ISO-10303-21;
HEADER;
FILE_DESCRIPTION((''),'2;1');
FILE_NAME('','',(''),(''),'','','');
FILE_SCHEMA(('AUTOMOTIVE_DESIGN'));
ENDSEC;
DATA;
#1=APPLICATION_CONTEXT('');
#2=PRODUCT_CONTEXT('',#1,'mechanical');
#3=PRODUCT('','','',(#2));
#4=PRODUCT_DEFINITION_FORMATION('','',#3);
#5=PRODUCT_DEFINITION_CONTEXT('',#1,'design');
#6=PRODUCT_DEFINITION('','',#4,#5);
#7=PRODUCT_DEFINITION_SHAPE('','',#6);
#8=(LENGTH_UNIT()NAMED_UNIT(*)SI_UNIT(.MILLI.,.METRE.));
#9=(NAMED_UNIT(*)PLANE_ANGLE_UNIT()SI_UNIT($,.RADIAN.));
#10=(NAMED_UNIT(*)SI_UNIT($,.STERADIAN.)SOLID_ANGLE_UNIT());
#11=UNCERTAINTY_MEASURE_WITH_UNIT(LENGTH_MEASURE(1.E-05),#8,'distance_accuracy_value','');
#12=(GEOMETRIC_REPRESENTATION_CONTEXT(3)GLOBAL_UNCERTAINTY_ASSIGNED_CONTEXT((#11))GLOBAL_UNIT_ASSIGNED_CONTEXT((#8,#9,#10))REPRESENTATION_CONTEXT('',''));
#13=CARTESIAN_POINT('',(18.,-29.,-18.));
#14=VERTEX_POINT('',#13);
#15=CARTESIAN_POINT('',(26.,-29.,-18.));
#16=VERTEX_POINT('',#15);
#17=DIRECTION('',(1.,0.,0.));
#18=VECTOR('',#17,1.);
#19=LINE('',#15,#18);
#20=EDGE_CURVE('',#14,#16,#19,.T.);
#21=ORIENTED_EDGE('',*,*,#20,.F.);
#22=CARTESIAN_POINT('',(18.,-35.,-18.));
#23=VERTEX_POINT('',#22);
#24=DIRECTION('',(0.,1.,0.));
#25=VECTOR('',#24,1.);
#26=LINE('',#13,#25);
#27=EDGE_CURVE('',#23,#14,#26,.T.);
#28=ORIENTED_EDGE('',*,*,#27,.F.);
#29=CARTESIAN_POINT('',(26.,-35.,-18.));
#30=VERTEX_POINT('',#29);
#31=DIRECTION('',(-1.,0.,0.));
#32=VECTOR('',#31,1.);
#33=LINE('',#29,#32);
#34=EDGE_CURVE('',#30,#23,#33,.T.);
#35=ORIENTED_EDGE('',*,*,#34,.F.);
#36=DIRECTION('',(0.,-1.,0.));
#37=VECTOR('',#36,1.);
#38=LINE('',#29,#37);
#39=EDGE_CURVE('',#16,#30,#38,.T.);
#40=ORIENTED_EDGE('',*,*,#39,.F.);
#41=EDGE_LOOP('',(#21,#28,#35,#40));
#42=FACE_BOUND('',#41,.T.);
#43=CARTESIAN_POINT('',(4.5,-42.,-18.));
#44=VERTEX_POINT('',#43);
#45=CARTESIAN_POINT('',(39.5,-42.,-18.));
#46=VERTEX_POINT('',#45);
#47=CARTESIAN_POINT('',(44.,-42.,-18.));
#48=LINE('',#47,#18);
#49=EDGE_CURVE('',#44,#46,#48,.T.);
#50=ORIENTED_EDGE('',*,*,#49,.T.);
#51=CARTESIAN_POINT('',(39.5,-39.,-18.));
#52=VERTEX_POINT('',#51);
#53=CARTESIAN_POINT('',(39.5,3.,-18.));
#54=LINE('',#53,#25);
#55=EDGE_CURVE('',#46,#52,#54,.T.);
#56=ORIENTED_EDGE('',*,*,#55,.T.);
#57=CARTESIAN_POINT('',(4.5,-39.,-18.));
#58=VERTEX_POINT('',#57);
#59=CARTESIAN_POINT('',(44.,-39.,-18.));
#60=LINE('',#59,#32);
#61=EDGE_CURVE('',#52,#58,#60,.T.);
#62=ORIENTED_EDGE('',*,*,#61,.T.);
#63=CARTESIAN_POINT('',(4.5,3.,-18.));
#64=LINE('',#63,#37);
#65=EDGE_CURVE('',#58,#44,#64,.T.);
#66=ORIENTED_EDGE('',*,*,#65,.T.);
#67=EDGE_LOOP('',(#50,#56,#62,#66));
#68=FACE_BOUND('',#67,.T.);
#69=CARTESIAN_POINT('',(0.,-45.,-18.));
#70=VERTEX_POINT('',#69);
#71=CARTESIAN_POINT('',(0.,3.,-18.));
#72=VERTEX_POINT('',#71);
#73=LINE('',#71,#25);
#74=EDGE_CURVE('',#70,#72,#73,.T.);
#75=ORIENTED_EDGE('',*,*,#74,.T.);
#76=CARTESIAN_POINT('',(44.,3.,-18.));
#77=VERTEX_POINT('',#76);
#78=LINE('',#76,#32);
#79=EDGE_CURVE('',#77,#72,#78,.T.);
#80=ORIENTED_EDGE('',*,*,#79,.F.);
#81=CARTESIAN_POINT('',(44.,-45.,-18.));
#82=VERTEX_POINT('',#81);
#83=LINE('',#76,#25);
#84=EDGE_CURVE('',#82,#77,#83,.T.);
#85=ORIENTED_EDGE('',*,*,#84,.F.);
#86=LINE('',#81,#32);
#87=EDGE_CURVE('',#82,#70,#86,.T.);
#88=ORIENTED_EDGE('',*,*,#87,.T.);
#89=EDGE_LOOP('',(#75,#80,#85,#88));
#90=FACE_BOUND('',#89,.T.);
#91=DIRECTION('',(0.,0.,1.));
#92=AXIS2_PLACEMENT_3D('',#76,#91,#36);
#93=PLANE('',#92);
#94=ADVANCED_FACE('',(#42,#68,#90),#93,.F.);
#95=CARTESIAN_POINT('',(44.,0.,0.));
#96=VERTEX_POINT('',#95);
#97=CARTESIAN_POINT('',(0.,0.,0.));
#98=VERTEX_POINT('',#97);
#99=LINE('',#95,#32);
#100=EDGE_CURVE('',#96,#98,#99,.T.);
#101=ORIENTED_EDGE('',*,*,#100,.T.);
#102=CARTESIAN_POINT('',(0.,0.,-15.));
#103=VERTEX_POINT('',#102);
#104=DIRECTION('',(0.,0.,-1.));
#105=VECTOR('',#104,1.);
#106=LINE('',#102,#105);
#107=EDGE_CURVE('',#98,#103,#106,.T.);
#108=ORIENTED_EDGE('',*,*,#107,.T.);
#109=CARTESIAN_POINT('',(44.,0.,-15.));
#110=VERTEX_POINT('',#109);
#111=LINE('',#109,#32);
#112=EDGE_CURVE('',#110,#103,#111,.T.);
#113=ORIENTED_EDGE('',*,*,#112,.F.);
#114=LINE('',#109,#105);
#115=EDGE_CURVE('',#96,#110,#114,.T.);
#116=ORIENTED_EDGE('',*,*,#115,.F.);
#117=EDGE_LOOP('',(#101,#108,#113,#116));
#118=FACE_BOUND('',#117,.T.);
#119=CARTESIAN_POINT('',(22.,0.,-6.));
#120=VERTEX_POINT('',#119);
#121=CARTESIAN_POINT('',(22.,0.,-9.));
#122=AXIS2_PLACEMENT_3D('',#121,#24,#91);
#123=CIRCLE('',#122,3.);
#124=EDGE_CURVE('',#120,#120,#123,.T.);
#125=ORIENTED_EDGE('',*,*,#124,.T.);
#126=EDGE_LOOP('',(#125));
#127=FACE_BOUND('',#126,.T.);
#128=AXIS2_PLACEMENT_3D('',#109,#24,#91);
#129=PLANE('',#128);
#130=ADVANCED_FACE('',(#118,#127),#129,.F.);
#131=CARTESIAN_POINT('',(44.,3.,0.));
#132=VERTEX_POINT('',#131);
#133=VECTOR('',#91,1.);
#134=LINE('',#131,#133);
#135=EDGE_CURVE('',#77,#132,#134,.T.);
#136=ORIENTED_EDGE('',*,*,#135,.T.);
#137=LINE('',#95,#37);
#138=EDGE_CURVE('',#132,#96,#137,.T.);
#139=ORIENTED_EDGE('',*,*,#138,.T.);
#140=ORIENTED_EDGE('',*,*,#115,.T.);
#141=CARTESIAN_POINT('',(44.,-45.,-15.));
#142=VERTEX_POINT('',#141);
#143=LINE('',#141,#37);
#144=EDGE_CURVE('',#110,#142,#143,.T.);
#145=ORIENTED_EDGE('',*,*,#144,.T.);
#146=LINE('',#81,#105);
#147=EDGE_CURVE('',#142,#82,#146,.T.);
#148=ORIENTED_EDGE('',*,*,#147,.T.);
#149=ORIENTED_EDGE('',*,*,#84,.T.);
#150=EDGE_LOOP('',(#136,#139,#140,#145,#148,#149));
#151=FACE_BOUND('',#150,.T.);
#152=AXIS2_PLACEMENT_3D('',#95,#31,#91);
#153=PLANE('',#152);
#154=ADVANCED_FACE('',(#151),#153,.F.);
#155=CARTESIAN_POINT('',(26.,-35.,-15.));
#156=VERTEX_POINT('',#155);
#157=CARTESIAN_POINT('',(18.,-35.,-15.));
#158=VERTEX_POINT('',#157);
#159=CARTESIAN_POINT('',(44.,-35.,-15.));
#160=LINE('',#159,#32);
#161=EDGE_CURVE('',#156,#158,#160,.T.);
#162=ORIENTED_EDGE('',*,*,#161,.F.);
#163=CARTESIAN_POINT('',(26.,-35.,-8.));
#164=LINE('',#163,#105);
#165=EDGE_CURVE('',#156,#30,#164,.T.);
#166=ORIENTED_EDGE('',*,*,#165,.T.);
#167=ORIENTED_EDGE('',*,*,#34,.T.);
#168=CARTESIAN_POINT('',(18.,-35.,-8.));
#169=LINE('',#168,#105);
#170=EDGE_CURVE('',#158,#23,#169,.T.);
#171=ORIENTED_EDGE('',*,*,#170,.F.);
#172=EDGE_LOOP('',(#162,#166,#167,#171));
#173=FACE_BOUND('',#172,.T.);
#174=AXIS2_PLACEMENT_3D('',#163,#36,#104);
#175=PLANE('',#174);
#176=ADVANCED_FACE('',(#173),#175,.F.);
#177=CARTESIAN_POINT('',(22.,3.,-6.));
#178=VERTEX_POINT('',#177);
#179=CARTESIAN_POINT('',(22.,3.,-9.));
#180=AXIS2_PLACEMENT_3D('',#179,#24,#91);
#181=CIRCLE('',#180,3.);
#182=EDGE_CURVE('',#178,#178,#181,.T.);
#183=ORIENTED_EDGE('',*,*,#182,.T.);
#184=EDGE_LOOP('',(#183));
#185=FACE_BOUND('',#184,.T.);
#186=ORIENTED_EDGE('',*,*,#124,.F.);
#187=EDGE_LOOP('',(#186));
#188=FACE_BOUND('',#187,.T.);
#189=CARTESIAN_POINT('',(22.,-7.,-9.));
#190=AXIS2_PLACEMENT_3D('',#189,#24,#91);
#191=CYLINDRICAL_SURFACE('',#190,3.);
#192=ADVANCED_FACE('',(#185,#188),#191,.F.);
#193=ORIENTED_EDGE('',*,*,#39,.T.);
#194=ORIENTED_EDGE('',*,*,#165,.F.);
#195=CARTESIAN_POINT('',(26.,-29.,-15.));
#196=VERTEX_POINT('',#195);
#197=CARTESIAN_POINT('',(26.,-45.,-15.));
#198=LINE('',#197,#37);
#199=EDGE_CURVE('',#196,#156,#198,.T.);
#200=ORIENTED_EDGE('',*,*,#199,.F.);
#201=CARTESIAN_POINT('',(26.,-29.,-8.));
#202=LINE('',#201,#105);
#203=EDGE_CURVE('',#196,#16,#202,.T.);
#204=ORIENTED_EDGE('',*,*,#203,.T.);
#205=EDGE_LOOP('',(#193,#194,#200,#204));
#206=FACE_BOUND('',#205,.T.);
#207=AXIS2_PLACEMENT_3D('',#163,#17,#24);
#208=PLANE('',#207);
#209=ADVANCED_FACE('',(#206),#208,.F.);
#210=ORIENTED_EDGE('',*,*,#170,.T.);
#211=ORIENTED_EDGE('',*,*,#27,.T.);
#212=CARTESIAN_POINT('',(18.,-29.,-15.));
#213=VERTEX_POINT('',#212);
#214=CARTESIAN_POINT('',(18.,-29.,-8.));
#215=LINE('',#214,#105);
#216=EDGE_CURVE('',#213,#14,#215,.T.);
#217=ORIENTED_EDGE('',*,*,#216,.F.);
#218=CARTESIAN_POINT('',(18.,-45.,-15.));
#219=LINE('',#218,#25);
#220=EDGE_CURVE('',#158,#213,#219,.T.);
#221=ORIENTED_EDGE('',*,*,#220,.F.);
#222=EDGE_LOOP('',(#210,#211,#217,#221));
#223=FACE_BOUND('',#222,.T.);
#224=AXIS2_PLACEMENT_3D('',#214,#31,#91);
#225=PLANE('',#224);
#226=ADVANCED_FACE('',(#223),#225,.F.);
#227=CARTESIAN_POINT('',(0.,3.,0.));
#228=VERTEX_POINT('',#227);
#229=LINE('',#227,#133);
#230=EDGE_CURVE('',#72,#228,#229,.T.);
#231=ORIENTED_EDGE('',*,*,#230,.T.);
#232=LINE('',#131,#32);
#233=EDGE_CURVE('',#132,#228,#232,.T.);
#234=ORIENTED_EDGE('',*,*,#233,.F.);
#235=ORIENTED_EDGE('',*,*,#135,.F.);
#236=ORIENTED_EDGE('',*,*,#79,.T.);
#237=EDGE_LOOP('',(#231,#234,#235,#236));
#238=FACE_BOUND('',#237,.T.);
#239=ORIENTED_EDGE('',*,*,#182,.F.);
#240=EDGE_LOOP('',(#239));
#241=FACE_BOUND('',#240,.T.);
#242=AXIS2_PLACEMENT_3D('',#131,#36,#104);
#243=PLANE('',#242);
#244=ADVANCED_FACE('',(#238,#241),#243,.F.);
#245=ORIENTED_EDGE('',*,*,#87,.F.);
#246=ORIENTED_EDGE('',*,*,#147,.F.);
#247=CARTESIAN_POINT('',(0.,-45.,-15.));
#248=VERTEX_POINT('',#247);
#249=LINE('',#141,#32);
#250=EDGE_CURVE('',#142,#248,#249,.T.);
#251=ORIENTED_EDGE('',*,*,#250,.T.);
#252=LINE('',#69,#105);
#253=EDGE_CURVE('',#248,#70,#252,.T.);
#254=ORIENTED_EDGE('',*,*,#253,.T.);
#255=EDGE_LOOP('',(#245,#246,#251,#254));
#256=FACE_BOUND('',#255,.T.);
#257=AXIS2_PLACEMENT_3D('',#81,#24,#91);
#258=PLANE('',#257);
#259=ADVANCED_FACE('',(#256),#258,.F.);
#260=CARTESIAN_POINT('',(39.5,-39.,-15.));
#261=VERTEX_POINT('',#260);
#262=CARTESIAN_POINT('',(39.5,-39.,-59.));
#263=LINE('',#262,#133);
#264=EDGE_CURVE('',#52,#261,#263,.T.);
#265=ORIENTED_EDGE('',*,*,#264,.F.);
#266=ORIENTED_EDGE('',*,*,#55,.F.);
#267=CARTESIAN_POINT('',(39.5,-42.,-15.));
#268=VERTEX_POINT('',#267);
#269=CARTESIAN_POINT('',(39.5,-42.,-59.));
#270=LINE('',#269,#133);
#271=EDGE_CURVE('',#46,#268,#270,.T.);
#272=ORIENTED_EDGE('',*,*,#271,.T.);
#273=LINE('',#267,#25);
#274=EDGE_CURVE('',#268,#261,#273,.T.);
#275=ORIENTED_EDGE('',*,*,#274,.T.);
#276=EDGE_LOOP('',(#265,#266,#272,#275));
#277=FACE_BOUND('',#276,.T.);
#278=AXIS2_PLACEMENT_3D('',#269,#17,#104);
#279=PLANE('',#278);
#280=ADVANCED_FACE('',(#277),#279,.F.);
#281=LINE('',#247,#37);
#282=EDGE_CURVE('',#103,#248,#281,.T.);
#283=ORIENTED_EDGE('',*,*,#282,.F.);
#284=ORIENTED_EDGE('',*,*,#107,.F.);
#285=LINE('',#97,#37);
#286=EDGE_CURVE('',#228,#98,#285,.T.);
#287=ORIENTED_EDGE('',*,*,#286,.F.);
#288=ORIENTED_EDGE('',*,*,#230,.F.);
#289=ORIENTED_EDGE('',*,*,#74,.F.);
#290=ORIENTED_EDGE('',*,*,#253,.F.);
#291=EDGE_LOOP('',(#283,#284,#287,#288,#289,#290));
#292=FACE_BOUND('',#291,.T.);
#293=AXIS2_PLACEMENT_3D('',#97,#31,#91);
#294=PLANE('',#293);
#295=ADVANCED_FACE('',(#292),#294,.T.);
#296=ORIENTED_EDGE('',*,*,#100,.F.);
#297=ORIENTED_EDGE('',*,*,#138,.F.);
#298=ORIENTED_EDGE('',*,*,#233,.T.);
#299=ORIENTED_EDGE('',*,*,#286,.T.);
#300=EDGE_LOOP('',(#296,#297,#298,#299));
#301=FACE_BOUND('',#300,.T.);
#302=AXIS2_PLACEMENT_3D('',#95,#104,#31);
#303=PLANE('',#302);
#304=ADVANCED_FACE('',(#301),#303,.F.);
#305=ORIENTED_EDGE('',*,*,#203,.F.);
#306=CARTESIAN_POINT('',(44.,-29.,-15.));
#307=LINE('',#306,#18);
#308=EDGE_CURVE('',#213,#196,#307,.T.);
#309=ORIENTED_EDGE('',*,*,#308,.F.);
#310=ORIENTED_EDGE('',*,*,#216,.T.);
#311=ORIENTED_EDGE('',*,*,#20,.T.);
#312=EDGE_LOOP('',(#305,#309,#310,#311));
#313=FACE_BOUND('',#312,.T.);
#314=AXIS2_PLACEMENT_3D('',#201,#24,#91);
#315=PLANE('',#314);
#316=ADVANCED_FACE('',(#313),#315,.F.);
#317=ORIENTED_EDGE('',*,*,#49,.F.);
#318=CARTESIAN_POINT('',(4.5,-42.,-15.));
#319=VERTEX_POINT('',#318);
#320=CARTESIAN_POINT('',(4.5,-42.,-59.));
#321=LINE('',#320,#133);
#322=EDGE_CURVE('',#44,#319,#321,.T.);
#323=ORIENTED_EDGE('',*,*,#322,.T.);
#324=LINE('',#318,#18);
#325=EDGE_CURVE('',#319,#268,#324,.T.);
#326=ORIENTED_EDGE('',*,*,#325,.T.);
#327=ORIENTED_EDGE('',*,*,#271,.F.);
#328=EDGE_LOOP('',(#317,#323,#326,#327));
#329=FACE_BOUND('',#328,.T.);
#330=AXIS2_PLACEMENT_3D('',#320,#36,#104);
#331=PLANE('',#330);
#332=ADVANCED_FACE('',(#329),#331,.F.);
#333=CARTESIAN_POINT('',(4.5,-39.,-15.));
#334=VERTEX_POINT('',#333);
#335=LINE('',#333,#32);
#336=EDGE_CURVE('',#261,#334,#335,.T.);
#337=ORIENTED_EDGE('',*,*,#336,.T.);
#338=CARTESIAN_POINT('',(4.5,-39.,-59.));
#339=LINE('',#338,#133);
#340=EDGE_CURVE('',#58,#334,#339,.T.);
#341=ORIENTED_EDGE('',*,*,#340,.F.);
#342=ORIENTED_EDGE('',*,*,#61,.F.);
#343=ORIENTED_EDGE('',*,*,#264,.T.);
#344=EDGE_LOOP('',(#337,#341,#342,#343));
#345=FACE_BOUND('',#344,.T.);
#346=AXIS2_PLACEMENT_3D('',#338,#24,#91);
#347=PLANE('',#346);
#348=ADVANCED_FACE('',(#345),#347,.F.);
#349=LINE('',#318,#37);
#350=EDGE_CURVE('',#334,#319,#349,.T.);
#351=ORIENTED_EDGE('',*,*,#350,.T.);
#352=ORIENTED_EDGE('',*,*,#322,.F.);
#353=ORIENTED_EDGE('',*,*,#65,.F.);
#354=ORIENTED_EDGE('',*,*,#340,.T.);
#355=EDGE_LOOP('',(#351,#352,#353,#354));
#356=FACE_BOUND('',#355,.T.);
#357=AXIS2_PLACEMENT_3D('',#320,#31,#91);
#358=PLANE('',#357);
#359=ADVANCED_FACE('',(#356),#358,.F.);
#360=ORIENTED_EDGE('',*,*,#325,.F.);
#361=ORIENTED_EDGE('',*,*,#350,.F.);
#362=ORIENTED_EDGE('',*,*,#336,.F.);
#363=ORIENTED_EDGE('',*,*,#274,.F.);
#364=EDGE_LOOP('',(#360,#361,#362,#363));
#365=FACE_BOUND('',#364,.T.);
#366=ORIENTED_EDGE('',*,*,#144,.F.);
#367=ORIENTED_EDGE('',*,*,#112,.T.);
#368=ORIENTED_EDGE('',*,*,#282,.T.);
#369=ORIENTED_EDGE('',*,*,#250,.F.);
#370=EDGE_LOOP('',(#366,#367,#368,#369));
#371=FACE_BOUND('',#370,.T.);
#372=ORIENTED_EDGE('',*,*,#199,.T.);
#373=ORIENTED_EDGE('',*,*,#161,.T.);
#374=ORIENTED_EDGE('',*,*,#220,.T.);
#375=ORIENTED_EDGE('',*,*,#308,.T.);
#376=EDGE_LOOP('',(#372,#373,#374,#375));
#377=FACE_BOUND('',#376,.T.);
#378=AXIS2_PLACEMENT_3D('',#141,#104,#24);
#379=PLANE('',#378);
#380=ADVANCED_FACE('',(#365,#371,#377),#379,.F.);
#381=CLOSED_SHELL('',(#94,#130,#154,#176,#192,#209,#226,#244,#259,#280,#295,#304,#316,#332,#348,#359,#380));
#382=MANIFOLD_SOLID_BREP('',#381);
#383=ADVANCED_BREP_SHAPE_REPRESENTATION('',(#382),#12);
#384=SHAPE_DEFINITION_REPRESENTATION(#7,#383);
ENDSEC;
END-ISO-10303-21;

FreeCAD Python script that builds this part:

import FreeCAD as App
import Part
import Sketcher
from FreeCAD import Vector

doc = App.newDocument("Part")
body = doc.addObject("PartDesign::Body", "Body")

# Sketch on YZ plane
sketch1 = doc.addObject("Sketcher::SketchObject", "Sketch")
body.addObject(sketch1)
sketch1.AttachmentSupport = (doc.YZ_Plane, [""])
sketch1.MapMode = "FlatFace"
sketch1.addGeometry([
    Part.LineSegment(Vector(3, 0, 0), Vector(0, 0, 0)),  # 0
    Part.LineSegment(Vector(0, 0, 0), Vector(0, -15, 0)),  # 1
    Part.LineSegment(Vector(0, -15, 0), Vector(-45, -15, 0)),  # 2
    Part.LineSegment(Vector(-45, -15, 0), Vector(-45, -18, 0)),  # 3
    Part.LineSegment(Vector(-45, -18, 0), Vector(3, -18, 0)),  # 4
    Part.LineSegment(Vector(3, -18, 0), Vector(3, 0, 0)),  # 5
], False)
sketch1.addConstraint([
    Sketcher.Constraint("Coincident", 0, 2, 1, 1),
    Sketcher.Constraint("Coincident", 1, 2, 2, 1),
    Sketcher.Constraint("Coincident", 2, 2, 3, 1),
    Sketcher.Constraint("Coincident", 3, 2, 4, 1),
    Sketcher.Constraint("Coincident", 4, 2, 5, 1),
    Sketcher.Constraint("Coincident", 5, 2, 0, 1),
    Sketcher.Constraint("Horizontal", 0),
    Sketcher.Constraint("Vertical", 1),
    Sketcher.Constraint("Horizontal", 2),
    Sketcher.Constraint("Vertical", 3),
    Sketcher.Constraint("Horizontal", 4),
    Sketcher.Constraint("Vertical", 5),
    Sketcher.Constraint("Coincident", 0, 2, -1, 1),
    Sketcher.Constraint("Equal", 0, 3),
    Sketcher.Constraint("DistanceX", 0, 2, 0, 1, 3.0),
    Sketcher.Constraint("DistanceX", 2, 2, 2, 1, 45.0),
    Sketcher.Constraint("DistanceY", 1, 2, 1, 1, 15.0),
])
pad1 = doc.addObject("PartDesign::Pad", "Pad")
body.addObject(pad1)
pad1.Profile = sketch1
pad1.Length = 44

# Sketch on XY plane
sketch2 = doc.addObject("Sketcher::SketchObject", "Sketch001")
body.addObject(sketch2)
sketch2.AttachmentSupport = (doc.XY_Plane, [""])
sketch2.MapMode = "FlatFace"
sketch2.AttachmentOffset = App.Placement(Vector(0, 0, -15), App.Rotation())
sketch2.addGeometry([
    Part.LineSegment(Vector(4.5, -39, 0), Vector(4.5, -42, 0)),
    Part.LineSegment(Vector(4.5, -42, 0), Vector(39.5, -42, 0)),
    Part.LineSegment(Vector(39.5, -42, 0), Vector(39.5, -39, 0)),
    Part.LineSegment(Vector(39.5, -39, 0), Vector(4.5, -39, 0)),
], False)
sketch2.addConstraint([
    Sketcher.Constraint("Coincident", 0, 2, 1, 1),
    Sketcher.Constraint("Coincident", 1, 2, 2, 1),
    Sketcher.Constraint("Coincident", 2, 2, 3, 1),
    Sketcher.Constraint("Coincident", 3, 2, 0, 1),
    Sketcher.Constraint("Vertical", 0),
    Sketcher.Constraint("Horizontal", 1),
    Sketcher.Constraint("Vertical", 2),
    Sketcher.Constraint("Horizontal", 3),
    Sketcher.Constraint("DistanceX", 1, 1, 1, 2, 35.0),
    Sketcher.Constraint("DistanceY", 0, 2, 0, 1, 3.0),
    Sketcher.Constraint("DistanceY", 0, 2, -1, 1, 42.0),
    Sketcher.Constraint("DistanceX", -1, 1, 0, 2, 4.5),
])
pocket1 = doc.addObject("PartDesign::Pocket", "Pocket")
body.addObject(pocket1)
pocket1.Profile = sketch2
pocket1.Length = 44

# Sketch on XZ plane
sketch3 = doc.addObject("Sketcher::SketchObject", "Sketch002")
body.addObject(sketch3)
sketch3.AttachmentSupport = (doc.XZ_Plane, [""])
sketch3.MapMode = "FlatFace"
sketch3.AttachmentOffset = App.Placement(Vector(0, 0, -3), App.Rotation())
sketch3.addGeometry(Part.Circle(Vector(22, -9, 0), Vector(0, 0, 1), 3), False)
sketch3.addConstraint([
    Sketcher.Constraint("Diameter", 0, 6.0),
    Sketcher.Constraint("DistanceX", -1, 1, 0, 3, 22.0),
    Sketcher.Constraint("DistanceY", 0, 3, -1, 1, 9.0),
])
pocket2 = doc.addObject("PartDesign::Pocket", "Pocket001")
body.addObject(pocket2)
pocket2.Profile = sketch3
pocket2.Length = 10
pocket2.Reversed = True

# Sketch on XY plane
sketch4 = doc.addObject("Sketcher::SketchObject", "Sketch003")
body.addObject(sketch4)
sketch4.AttachmentSupport = (doc.XY_Plane, [""])
sketch4.MapMode = "FlatFace"
sketch4.AttachmentOffset = App.Placement(Vector(0, 0, -18), App.Rotation())
sketch4.addGeometry([
    Part.LineSegment(Vector(26, -29, 0), Vector(26, -35, 0)),
    Part.LineSegment(Vector(26, -35, 0), Vector(18, -35, 0)),
    Part.LineSegment(Vector(18, -35, 0), Vector(18, -29, 0)),
    Part.LineSegment(Vector(18, -29, 0), Vector(26, -29, 0)),
], False)
sketch4.addConstraint([
    Sketcher.Constraint("Coincident", 0, 2, 1, 1),
    Sketcher.Constraint("Coincident", 1, 2, 2, 1),
    Sketcher.Constraint("Coincident", 2, 2, 3, 1),
    Sketcher.Constraint("Coincident", 3, 2, 0, 1),
    Sketcher.Constraint("Vertical", 0),
    Sketcher.Constraint("Horizontal", 1),
    Sketcher.Constraint("Vertical", 2),
    Sketcher.Constraint("Horizontal", 3),
    Sketcher.Constraint("DistanceX", 1, 2, 1, 1, 8.0),
    Sketcher.Constraint("DistanceY", 0, 2, 0, 1, 6.0),
    Sketcher.Constraint("DistanceX", -1, 1, 0, 2, 26.0),
    Sketcher.Constraint("DistanceY", 0, 2, -1, 1, 35.0),
])
pocket3 = doc.addObject("PartDesign::Pocket", "Pocket002")
body.addObject(pocket3)
pocket3.Profile = sketch4
pocket3.Length = 10
pocket3.Reversed = True

doc.recompute()
